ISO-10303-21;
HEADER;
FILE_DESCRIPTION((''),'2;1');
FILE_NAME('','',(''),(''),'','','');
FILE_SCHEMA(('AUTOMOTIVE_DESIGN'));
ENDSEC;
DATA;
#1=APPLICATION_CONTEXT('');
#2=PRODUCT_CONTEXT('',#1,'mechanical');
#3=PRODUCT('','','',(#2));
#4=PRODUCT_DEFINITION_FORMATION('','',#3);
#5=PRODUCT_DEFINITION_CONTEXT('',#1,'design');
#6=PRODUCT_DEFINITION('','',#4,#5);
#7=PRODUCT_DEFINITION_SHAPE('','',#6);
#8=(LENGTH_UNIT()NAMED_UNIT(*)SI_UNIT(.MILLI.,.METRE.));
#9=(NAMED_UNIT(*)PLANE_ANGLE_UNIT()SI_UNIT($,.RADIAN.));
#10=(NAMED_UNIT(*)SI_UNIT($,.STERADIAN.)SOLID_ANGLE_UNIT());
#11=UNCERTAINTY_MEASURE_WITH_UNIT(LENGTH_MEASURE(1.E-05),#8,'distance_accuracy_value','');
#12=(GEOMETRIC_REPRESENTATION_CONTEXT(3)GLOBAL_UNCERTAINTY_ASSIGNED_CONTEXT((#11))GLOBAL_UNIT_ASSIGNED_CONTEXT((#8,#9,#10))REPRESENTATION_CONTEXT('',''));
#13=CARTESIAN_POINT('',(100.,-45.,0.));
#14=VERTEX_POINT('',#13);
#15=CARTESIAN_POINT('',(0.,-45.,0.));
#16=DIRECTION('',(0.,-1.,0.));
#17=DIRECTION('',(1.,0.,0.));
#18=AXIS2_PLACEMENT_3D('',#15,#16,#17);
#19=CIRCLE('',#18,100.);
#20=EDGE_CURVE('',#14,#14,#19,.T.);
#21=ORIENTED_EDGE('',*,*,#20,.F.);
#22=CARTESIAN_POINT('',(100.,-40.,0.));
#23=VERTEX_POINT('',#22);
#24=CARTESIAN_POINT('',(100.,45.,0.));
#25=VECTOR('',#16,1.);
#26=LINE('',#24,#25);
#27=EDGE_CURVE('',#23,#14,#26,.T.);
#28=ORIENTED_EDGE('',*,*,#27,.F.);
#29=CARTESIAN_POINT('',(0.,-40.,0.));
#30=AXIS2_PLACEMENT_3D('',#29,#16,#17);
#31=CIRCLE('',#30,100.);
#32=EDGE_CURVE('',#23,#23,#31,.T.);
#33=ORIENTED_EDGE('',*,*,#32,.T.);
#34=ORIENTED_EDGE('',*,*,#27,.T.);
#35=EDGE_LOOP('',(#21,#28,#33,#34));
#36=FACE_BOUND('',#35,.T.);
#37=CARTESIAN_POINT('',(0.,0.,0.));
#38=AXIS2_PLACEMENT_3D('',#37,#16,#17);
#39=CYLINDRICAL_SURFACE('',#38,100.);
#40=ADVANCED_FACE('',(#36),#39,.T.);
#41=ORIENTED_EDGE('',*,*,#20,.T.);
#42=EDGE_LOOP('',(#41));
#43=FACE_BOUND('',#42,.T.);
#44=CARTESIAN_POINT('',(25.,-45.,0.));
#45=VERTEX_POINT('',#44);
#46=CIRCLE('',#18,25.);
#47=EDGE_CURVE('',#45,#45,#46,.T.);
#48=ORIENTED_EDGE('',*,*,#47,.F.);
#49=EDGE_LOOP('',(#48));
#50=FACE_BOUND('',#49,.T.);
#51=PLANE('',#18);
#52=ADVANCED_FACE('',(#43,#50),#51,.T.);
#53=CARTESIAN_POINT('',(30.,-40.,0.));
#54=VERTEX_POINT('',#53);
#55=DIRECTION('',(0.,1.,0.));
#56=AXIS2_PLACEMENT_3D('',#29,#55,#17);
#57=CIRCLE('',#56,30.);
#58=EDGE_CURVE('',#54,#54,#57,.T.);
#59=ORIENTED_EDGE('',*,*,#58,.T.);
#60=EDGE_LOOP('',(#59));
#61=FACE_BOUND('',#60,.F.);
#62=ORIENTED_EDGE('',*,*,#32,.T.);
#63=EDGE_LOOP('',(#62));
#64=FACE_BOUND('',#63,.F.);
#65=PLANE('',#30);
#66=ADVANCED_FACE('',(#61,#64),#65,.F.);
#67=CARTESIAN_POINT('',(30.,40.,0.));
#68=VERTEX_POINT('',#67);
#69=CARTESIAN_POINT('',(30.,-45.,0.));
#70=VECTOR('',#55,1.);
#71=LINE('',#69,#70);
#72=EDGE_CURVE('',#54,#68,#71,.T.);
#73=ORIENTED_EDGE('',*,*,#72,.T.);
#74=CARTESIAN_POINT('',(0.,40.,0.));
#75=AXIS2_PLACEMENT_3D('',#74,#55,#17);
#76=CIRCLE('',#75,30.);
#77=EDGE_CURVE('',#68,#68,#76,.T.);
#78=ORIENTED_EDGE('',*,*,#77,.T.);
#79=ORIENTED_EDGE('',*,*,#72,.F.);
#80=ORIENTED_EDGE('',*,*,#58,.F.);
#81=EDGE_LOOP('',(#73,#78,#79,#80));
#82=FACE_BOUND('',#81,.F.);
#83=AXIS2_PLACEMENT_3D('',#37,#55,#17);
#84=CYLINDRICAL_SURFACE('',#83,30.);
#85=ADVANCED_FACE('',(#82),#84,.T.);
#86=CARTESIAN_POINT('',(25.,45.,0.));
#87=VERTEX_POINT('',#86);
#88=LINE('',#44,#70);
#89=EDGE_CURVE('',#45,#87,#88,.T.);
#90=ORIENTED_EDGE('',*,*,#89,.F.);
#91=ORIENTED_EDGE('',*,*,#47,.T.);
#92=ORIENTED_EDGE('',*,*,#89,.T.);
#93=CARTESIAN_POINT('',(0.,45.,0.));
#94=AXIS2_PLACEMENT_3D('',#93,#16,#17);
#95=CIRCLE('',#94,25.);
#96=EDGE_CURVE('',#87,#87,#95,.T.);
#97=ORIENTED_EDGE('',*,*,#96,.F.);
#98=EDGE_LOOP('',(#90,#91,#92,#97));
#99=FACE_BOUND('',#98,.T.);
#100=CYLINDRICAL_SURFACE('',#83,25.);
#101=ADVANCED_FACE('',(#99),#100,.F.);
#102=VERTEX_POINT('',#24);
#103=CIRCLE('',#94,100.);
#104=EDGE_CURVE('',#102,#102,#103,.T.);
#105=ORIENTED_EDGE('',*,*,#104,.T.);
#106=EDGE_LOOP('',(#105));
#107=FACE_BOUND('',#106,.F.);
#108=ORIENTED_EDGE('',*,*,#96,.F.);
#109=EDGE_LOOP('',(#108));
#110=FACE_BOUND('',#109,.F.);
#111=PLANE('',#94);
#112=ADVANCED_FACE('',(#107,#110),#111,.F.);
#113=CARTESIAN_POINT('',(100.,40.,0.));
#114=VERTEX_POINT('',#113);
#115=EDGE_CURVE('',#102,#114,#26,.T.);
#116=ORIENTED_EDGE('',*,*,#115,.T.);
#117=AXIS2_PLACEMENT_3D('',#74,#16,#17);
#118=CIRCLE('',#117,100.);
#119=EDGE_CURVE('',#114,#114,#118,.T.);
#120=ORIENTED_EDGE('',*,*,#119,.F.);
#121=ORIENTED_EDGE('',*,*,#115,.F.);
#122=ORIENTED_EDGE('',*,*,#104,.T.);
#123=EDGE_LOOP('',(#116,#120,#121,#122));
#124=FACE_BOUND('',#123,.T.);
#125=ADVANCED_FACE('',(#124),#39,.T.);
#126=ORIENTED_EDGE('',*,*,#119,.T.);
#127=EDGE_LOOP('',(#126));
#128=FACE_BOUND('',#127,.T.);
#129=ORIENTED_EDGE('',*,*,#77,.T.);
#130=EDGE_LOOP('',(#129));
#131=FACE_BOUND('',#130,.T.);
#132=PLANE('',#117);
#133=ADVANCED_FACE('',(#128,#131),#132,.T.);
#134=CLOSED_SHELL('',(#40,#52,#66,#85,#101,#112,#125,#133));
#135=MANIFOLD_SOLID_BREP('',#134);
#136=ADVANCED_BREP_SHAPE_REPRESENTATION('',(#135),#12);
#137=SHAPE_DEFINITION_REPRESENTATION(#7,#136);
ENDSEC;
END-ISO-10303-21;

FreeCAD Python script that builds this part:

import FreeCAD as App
import Part
import Sketcher

V = App.Vector


def faces_at(feature, points):
    """Names of the faces that lie closest to the given points."""
    faces = feature.Shape.Faces
    near = lambda p: min(range(len(faces)), key=lambda i: faces[i].distToShape(Part.Vertex(*p))[0])
    return sorted({f"Face{near(p) + 1}" for p in points})

doc = App.newDocument("Part")
body = doc.addObject("PartDesign::Body", "Body")

# Sketch on XZ plane
sketch1 = body.newObject("Sketcher::SketchObject", "Sketch")
sketch1.AttachmentSupport = (doc.getObject("XZ_Plane"), [""])
sketch1.MapMode = "FlatFace"
sketch1.addGeometry([
    Part.Circle(V(0, 0, 0), V(0, 0, 1), 100),
    Part.Circle(V(0, 0, 0), V(0, 0, 1), 25),
], False)
sketch1.addConstraint([
    Sketcher.Constraint("Coincident", 0, 3, -1, 1),
    Sketcher.Constraint("Coincident", 1, 3, -1, 1),
    Sketcher.Constraint("Diameter", 0, 200.0),
    Sketcher.Constraint("Diameter", 1, 50.0),
])
pad1 = body.newObject("PartDesign::Pad", "Pad")
pad1.Profile = sketch1
pad1.Length = 90
pad1.Midplane = True
doc.recompute()

thickness = body.newObject("PartDesign::Thickness", "Thickness")
thickness.Base = (pad1, faces_at(pad1, [(-100, 0, 0)]))
thickness.Value = 5
thickness.Reversed = True
thickness.Join = "Arc"

doc.recompute()
